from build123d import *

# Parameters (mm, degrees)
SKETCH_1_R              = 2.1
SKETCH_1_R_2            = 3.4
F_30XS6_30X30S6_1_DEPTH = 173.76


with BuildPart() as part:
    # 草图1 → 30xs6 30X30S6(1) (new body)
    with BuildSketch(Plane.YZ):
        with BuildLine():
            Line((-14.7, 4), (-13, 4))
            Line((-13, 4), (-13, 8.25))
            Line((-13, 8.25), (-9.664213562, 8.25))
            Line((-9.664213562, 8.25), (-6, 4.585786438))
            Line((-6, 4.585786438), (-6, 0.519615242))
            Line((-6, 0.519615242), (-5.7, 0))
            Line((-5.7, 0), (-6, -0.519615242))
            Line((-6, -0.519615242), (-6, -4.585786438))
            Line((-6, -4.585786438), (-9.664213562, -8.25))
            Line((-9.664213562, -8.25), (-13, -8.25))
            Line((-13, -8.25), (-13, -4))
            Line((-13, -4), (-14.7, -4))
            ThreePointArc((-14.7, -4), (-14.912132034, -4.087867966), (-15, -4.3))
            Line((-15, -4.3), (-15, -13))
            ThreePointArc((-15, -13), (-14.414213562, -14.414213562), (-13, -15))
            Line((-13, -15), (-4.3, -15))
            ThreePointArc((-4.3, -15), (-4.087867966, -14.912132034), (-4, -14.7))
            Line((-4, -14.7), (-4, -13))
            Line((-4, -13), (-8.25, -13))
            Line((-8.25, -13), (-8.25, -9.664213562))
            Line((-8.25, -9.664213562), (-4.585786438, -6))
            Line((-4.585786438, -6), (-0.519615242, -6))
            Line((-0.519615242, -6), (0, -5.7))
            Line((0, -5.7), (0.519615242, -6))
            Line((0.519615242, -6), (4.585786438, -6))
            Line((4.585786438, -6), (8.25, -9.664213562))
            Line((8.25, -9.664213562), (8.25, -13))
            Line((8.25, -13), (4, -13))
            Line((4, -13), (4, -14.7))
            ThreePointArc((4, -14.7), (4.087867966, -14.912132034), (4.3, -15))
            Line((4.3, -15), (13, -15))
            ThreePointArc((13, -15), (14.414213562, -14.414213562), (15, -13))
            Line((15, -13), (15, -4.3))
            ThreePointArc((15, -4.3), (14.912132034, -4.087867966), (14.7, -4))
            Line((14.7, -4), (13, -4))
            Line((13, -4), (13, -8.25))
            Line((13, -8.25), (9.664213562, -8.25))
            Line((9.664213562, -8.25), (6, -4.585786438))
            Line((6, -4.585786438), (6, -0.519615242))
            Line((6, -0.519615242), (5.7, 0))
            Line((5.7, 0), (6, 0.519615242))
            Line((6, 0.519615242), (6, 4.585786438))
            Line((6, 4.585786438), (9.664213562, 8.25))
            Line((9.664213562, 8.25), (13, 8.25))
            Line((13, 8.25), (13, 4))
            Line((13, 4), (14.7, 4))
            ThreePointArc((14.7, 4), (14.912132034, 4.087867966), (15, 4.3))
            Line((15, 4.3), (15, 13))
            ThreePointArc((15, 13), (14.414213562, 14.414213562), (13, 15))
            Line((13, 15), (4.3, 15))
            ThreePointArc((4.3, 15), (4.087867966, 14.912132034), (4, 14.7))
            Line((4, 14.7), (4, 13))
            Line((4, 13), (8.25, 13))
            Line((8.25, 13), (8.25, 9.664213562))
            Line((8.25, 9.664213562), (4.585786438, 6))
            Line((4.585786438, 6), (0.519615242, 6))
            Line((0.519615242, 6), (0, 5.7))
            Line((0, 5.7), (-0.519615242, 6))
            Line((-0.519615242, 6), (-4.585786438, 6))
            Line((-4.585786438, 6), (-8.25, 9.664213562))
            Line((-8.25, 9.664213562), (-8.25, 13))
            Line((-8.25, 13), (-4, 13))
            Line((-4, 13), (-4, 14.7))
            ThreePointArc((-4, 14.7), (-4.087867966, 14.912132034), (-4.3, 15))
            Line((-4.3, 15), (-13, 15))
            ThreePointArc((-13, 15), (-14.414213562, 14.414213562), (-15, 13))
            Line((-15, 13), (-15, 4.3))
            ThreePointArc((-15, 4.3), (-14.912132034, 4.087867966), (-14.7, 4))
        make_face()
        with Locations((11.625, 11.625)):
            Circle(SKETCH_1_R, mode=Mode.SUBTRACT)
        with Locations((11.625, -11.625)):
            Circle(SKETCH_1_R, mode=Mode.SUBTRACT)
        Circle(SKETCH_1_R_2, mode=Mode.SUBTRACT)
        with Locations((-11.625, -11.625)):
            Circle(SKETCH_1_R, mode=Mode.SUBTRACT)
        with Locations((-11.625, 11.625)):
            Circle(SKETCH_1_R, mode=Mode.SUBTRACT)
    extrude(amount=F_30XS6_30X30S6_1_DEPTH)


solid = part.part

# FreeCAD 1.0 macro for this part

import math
import FreeCAD as App
import Part
import Sketcher
Q = App.Units.Quantity

doc = App.newDocument("Part")
body = doc.addObject("PartDesign::Body", "Body")

sketch1 = body.newObject("Sketcher::SketchObject", "Sketch")
sketch1.AttachmentSupport = (doc.getObject("YZ_Plane"), [""])
sketch1.MapMode = "FlatFace"
sketch1.addGeometry([
    Part.LineSegment(App.Vector(-14.7, 4, 0), App.Vector(-13, 4, 0)),
    Part.LineSegment(App.Vector(-13, 4, 0), App.Vector(-13, 8.25, 0)),
    Part.LineSegment(App.Vector(-13, 8.25, 0), App.Vector(-9.66, 8.25, 0)),
    Part.LineSegment(App.Vector(-9.66, 8.25, 0), App.Vector(-6, 4.59, 0)),
    Part.LineSegment(App.Vector(-6, 4.59, 0), App.Vector(-6, 0.52, 0)),
    Part.LineSegment(App.Vector(-6, 0.52, 0), App.Vector(-5.7, 0, 0)),
    Part.LineSegment(App.Vector(-5.7, 0, 0), App.Vector(-6, -0.52, 0)),
    Part.LineSegment(App.Vector(-6, -0.52, 0), App.Vector(-6, -4.59, 0)),
    Part.LineSegment(App.Vector(-6, -4.59, 0), App.Vector(-9.66, -8.25, 0)),
    Part.LineSegment(App.Vector(-9.66, -8.25, 0), App.Vector(-13, -8.25, 0)),
    Part.LineSegment(App.Vector(-13, -8.25, 0), App.Vector(-13, -4, 0)),
    Part.LineSegment(App.Vector(-13, -4, 0), App.Vector(-14.7, -4, 0)),
    Part.ArcOfCircle(Part.Circle(App.Vector(-14.7, -4.3, 0), App.Vector(0, 0, 1), 0.3), math.radians(90), math.radians(180)),
    Part.LineSegment(App.Vector(-15, -4.3, 0), App.Vector(-15, -13, 0)),
    Part.ArcOfCircle(Part.Circle(App.Vector(-13, -13, 0), App.Vector(0, 0, 1), 2), math.radians(-180), math.radians(-90)),
    Part.LineSegment(App.Vector(-13, -15, 0), App.Vector(-4.3, -15, 0)),
    Part.ArcOfCircle(Part.Circle(App.Vector(-4.3, -14.7, 0), App.Vector(0, 0, 1), 0.3), math.radians(-90), math.radians(0)),
    Part.LineSegment(App.Vector(-4, -14.7, 0), App.Vector(-4, -13, 0)),
    Part.LineSegment(App.Vector(-4, -13, 0), App.Vector(-8.25, -13, 0)),
    Part.LineSegment(App.Vector(-8.25, -13, 0), App.Vector(-8.25, -9.66, 0)),
    Part.LineSegment(App.Vector(-8.25, -9.66, 0), App.Vector(-4.59, -6, 0)),
    Part.LineSegment(App.Vector(-4.59, -6, 0), App.Vector(-0.52, -6, 0)),
    Part.LineSegment(App.Vector(-0.52, -6, 0), App.Vector(0, -5.7, 0)),
    Part.LineSegment(App.Vector(0, -5.7, 0), App.Vector(0.52, -6, 0)),
    Part.LineSegment(App.Vector(0.52, -6, 0), App.Vector(4.59, -6, 0)),
    Part.LineSegment(App.Vector(4.59, -6, 0), App.Vector(8.25, -9.66, 0)),
    Part.LineSegment(App.Vector(8.25, -9.66, 0), App.Vector(8.25, -13, 0)),
    Part.LineSegment(App.Vector(8.25, -13, 0), App.Vector(4, -13, 0)),
    Part.LineSegment(App.Vector(4, -13, 0), App.Vector(4, -14.7, 0)),
    Part.ArcOfCircle(Part.Circle(App.Vector(4.3, -14.7, 0), App.Vector(0, 0, 1), 0.3), math.radians(-180), math.radians(-90)),
    Part.LineSegment(App.Vector(4.3, -15, 0), App.Vector(13, -15, 0)),
    Part.ArcOfCircle(Part.Circle(App.Vector(13, -13, 0), App.Vector(0, 0, 1), 2), math.radians(-90), math.radians(0)),
    Part.LineSegment(App.Vector(15, -13, 0), App.Vector(15, -4.3, 0)),
    Part.ArcOfCircle(Part.Circle(App.Vector(14.7, -4.3, 0), App.Vector(0, 0, 1), 0.3), math.radians(0), math.radians(90)),
    Part.LineSegment(App.Vector(14.7, -4, 0), App.Vector(13, -4, 0)),
    Part.LineSegment(App.Vector(13, -4, 0), App.Vector(13, -8.25, 0)),
    Part.LineSegment(App.Vector(13, -8.25, 0), App.Vector(9.66, -8.25, 0)),
    Part.LineSegment(App.Vector(9.66, -8.25, 0), App.Vector(6, -4.59, 0)),
    Part.LineSegment(App.Vector(6, -4.59, 0), App.Vector(6, -0.52, 0)),
    Part.LineSegment(App.Vector(6, -0.52, 0), App.Vector(5.7, 0, 0)),
    Part.LineSegment(App.Vector(5.7, 0, 0), App.Vector(6, 0.52, 0)),
    Part.LineSegment(App.Vector(6, 0.52, 0), App.Vector(6, 4.59, 0)),
    Part.LineSegment(App.Vector(6, 4.59, 0), App.Vector(9.66, 8.25, 0)),
    Part.LineSegment(App.Vector(9.66, 8.25, 0), App.Vector(13, 8.25, 0)),
    Part.LineSegment(App.Vector(13, 8.25, 0), App.Vector(13, 4, 0)),
    Part.LineSegment(App.Vector(13, 4, 0), App.Vector(14.7, 4, 0)),
    Part.ArcOfCircle(Part.Circle(App.Vector(14.7, 4.3, 0), App.Vector(0, 0, 1), 0.3), math.radians(-90), math.radians(0)),
    Part.LineSegment(App.Vector(15, 4.3, 0), App.Vector(15, 13, 0)),
    Part.ArcOfCircle(Part.Circle(App.Vector(13, 13, 0), App.Vector(0, 0, 1), 2), math.radians(0), math.radians(90)),
    Part.LineSegment(App.Vector(13, 15, 0), App.Vector(4.3, 15, 0)),
    Part.ArcOfCircle(Part.Circle(App.Vector(4.3, 14.7, 0), App.Vector(0, 0, 1), 0.3), math.radians(90), math.radians(180)),
    Part.LineSegment(App.Vector(4, 14.7, 0), App.Vector(4, 13, 0)),
    Part.LineSegment(App.Vector(4, 13, 0), App.Vector(8.25, 13, 0)),
    Part.LineSegment(App.Vector(8.25, 13, 0), App.Vector(8.25, 9.66, 0)),
    Part.LineSegment(App.Vector(8.25, 9.66, 0), App.Vector(4.59, 6, 0)),
    Part.LineSegment(App.Vector(4.59, 6, 0), App.Vector(0.52, 6, 0)),
    Part.LineSegment(App.Vector(0.52, 6, 0), App.Vector(0, 5.7, 0)),
    Part.LineSegment(App.Vector(0, 5.7, 0), App.Vector(-0.52, 6, 0)),
    Part.LineSegment(App.Vector(-0.52, 6, 0), App.Vector(-4.59, 6, 0)),
    Part.LineSegment(App.Vector(-4.59, 6, 0), App.Vector(-8.25, 9.66, 0)),
    Part.LineSegment(App.Vector(-8.25, 9.66, 0), App.Vector(-8.25, 13, 0)),
    Part.LineSegment(App.Vector(-8.25, 13, 0), App.Vector(-4, 13, 0)),
    Part.LineSegment(App.Vector(-4, 13, 0), App.Vector(-4, 14.7, 0)),
    Part.ArcOfCircle(Part.Circle(App.Vector(-4.3, 14.7, 0), App.Vector(0, 0, 1), 0.3), math.radians(0), math.radians(90)),
    Part.LineSegment(App.Vector(-4.3, 15, 0), App.Vector(-13, 15, 0)),
    Part.ArcOfCircle(Part.Circle(App.Vector(-13, 13, 0), App.Vector(0, 0, 1), 2), math.radians(90), math.radians(180)),
    Part.LineSegment(App.Vector(-15, 13, 0), App.Vector(-15, 4.3, 0)),
    Part.ArcOfCircle(Part.Circle(App.Vector(-14.7, 4.3, 0), App.Vector(0, 0, 1), 0.3), math.radians(-180), math.radians(-90)),
    Part.Circle(App.Vector(-11.62, -11.62, 0), App.Vector(0, 0, 1), 2.1),
    Part.Circle(App.Vector(11.62, -11.62, 0), App.Vector(0, 0, 1), 2.1),
    Part.Circle(App.Vector(-11.62, 11.62, 0), App.Vector(0, 0, 1), 2.1),
    Part.Circle(App.Vector(0, 0, 0), App.Vector(0, 0, 1), 3.4),
    Part.Circle(App.Vector(11.62, 11.62, 0), App.Vector(0, 0, 1), 2.1),
], False)
sketch1.addConstraint([
    Sketcher.Constraint("Coincident", 0, 2, 1, 1),
    Sketcher.Constraint("Coincident", 1, 2, 2, 1),
    Sketcher.Constraint("Coincident", 2, 2, 3, 1),
    Sketcher.Constraint("Coincident", 3, 2, 4, 1),
    Sketcher.Constraint("Coincident", 4, 2, 5, 1),
    Sketcher.Constraint("Coincident", 5, 2, 6, 1),
    Sketcher.Constraint("Coincident", 6, 2, 7, 1),
    Sketcher.Constraint("Coincident", 7, 2, 8, 1),
    Sketcher.Constraint("Coincident", 8, 2, 9, 1),
    Sketcher.Constraint("Coincident", 9, 2, 10, 1),
    Sketcher.Constraint("Coincident", 10, 2, 11, 1),
    Sketcher.Constraint("Tangent", 11, 2, 12, 1),
    Sketcher.Constraint("Tangent", 12, 2, 13, 1),
    Sketcher.Constraint("Tangent", 13, 2, 14, 1),
    Sketcher.Constraint("Tangent", 14, 2, 15, 1),
    Sketcher.Constraint("Tangent", 15, 2, 16, 1),
    Sketcher.Constraint("Tangent", 16, 2, 17, 1),
    Sketcher.Constraint("Coincident", 17, 2, 18, 1),
    Sketcher.Constraint("Coincident", 18, 2, 19, 1),
    Sketcher.Constraint("Coincident", 19, 2, 20, 1),
    Sketcher.Constraint("Coincident", 20, 2, 21, 1),
    Sketcher.Constraint("Coincident", 21, 2, 22, 1),
    Sketcher.Constraint("Coincident", 22, 2, 23, 1),
    Sketcher.Constraint("Coincident", 23, 2, 24, 1),
    Sketcher.Constraint("Coincident", 24, 2, 25, 1),
    Sketcher.Constraint("Coincident", 25, 2, 26, 1),
    Sketcher.Constraint("Coincident", 26, 2, 27, 1),
    Sketcher.Constraint("Coincident", 27, 2, 28, 1),
    Sketcher.Constraint("Tangent", 28, 2, 29, 1),
    Sketcher.Constraint("Tangent", 29, 2, 30, 1),
    Sketcher.Constraint("Tangent", 30, 2, 31, 1),
    Sketcher.Constraint("Tangent", 31, 2, 32, 1),
    Sketcher.Constraint("Tangent", 32, 2, 33, 1),
    Sketcher.Constraint("Tangent", 33, 2, 34, 1),
    Sketcher.Constraint("Coincident", 34, 2, 35, 1),
    Sketcher.Constraint("Coincident", 35, 2, 36, 1),
    Sketcher.Constraint("Coincident", 36, 2, 37, 1),
    Sketcher.Constraint("Coincident", 37, 2, 38, 1),
    Sketcher.Constraint("Coincident", 38, 2, 39, 1),
    Sketcher.Constraint("Coincident", 39, 2, 40, 1),
    Sketcher.Constraint("Coincident", 40, 2, 41, 1),
    Sketcher.Constraint("Coincident", 41, 2, 42, 1),
    Sketcher.Constraint("Coincident", 42, 2, 43, 1),
    Sketcher.Constraint("Coincident", 43, 2, 44, 1),
    Sketcher.Constraint("Coincident", 44, 2, 45, 1),
    Sketcher.Constraint("Tangent", 45, 2, 46, 1),
    Sketcher.Constraint("Tangent", 46, 2, 47, 1),
    Sketcher.Constraint("Tangent", 47, 2, 48, 1),
    Sketcher.Constraint("Tangent", 48, 2, 49, 1),
    Sketcher.Constraint("Tangent", 49, 2, 50, 1),
    Sketcher.Constraint("Tangent", 50, 2, 51, 1),
    Sketcher.Constraint("Coincident", 51, 2, 52, 1),
    Sketcher.Constraint("Coincident", 52, 2, 53, 1),
    Sketcher.Constraint("Coincident", 53, 2, 54, 1),
    Sketcher.Constraint("Coincident", 54, 2, 55, 1),
    Sketcher.Constraint("Coincident", 55, 2, 56, 1),
    Sketcher.Constraint("Coincident", 56, 2, 57, 1),
    Sketcher.Constraint("Coincident", 57, 2, 58, 1),
    Sketcher.Constraint("Coincident", 58, 2, 59, 1),
    Sketcher.Constraint("Coincident", 59, 2, 60, 1),
    Sketcher.Constraint("Coincident", 60, 2, 61, 1),
    Sketcher.Constraint("Coincident", 61, 2, 62, 1),
    Sketcher.Constraint("Tangent", 62, 2, 63, 1),
    Sketcher.Constraint("Tangent", 63, 2, 64, 1),
    Sketcher.Constraint("Tangent", 64, 2, 65, 1),
    Sketcher.Constraint("Tangent", 65, 2, 66, 1),
    Sketcher.Constraint("Tangent", 66, 2, 67, 1),
    Sketcher.Constraint("Tangent", 67, 2, 0, 1),
    Sketcher.Constraint("Horizontal", 0),
    Sketcher.Constraint("Vertical", 1),
    Sketcher.Constraint("Horizontal", 2),
    Sketcher.Constraint("Vertical", 4),
    Sketcher.Constraint("Vertical", 7),
    Sketcher.Constraint("Horizontal", 9),
    Sketcher.Constraint("Vertical", 10),
    Sketcher.Constraint("Horizontal", 11),
    Sketcher.Constraint("Vertical", 13),
    Sketcher.Constraint("Horizontal", 15),
    Sketcher.Constraint("Vertical", 17),
    Sketcher.Constraint("Horizontal", 18),
    Sketcher.Constraint("Vertical", 19),
    Sketcher.Constraint("Horizontal", 21),
    Sketcher.Constraint("Horizontal", 24),
    Sketcher.Constraint("Vertical", 26),
    Sketcher.Constraint("Horizontal", 27),
    Sketcher.Constraint("Vertical", 28),
    Sketcher.Constraint("Horizontal", 30),
    Sketcher.Constraint("Vertical", 32),
    Sketcher.Constraint("Horizontal", 34),
    Sketcher.Constraint("Vertical", 35),
    Sketcher.Constraint("Horizontal", 36),
    Sketcher.Constraint("Vertical", 38),
    Sketcher.Constraint("Vertical", 41),
    Sketcher.Constraint("Horizontal", 43),
    Sketcher.Constraint("Vertical", 44),
    Sketcher.Constraint("Horizontal", 45),
    Sketcher.Constraint("Vertical", 47),
    Sketcher.Constraint("Horizontal", 49),
    Sketcher.Constraint("Vertical", 51),
    Sketcher.Constraint("Horizontal", 52),
    Sketcher.Constraint("Vertical", 53),
    Sketcher.Constraint("Horizontal", 55),
    Sketcher.Constraint("Horizontal", 58),
    Sketcher.Constraint("Vertical", 60),
    Sketcher.Constraint("Horizontal", 61),
    Sketcher.Constraint("Vertical", 62),
    Sketcher.Constraint("Horizontal", 64),
    Sketcher.Constraint("Vertical", 66),
    Sketcher.Constraint("Coincident", 71, 3, -1, 1),
    Sketcher.Constraint("Equal", 12, 16),
    Sketcher.Constraint("Equal", 16, 29),
    Sketcher.Constraint("Equal", 14, 31),
    Sketcher.Constraint("Equal", 29, 33),
    Sketcher.Constraint("Equal", 33, 46),
    Sketcher.Constraint("Equal", 31, 48),
    Sketcher.Constraint("Equal", 46, 50),
    Sketcher.Constraint("Equal", 50, 63),
    Sketcher.Constraint("Equal", 48, 65),
    Sketcher.Constraint("Equal", 63, 67),
    Sketcher.Constraint("Equal", 68, 69),
    Sketcher.Constraint("Equal", 69, 70),
    Sketcher.Constraint("Equal", 70, 72),
    Sketcher.Constraint("Symmetric", 12, 3, 46, 3, -1, 1),
    Sketcher.Constraint("Symmetric", 16, 3, 50, 3, -1, 1),
    Sketcher.Constraint("Symmetric", 29, 3, 63, 3, -1, 1),
    Sketcher.Constraint("Symmetric", 33, 3, 67, 3, -1, 1),
    Sketcher.Constraint("Symmetric", 69, 3, 70, 3, -1, 1),
    Sketcher.Constraint("Symmetric", 68, 3, 72, 3, -1, 1),
    Sketcher.Constraint("Symmetric", 1, 2, 35, 2, -1, 1),
    Sketcher.Constraint("Symmetric", 3, 2, 37, 2, -1, 1),
    Sketcher.Constraint("Symmetric", 5, 2, 39, 2, -1, 1),
    Sketcher.Constraint("Symmetric", 6, 2, 40, 2, -1, 1),
    Sketcher.Constraint("Symmetric", 8, 2, 42, 2, -1, 1),
    Sketcher.Constraint("Symmetric", 18, 2, 52, 2, -1, 1),
    Sketcher.Constraint("Symmetric", 20, 2, 54, 2, -1, 1),
    Sketcher.Constraint("Symmetric", 22, 2, 56, 2, -1, 1),
    Sketcher.Constraint("Symmetric", 23, 2, 57, 2, -1, 1),
    Sketcher.Constraint("Symmetric", 25, 2, 59, 2, -1, 1),
    Sketcher.Constraint("Symmetric", 16, 3, 29, 3, -2),
    Sketcher.Constraint("Symmetric", 12, 3, 33, 3, -2),
    Sketcher.Constraint("Symmetric", 68, 3, 69, 3, -2),
    Sketcher.Constraint("Symmetric", 21, 2, 23, 2, -2),
    Sketcher.Constraint("Symmetric", 19, 2, 25, 2, -2),
    Sketcher.Constraint("Symmetric", 9, 2, 35, 2, -2),
    Sketcher.Constraint("Symmetric", 7, 2, 37, 2, -2),
    Sketcher.Constraint("PointOnObject", 5, 2, -1),
    Sketcher.Constraint("PointOnObject", 22, 2, -2),
    Sketcher.Constraint("Perpendicular", 3, 8),
    Sketcher.Constraint("Parallel", 8, 20),
    Sketcher.Constraint("Perpendicular", 5, 22),
    Sketcher.Constraint("Perpendicular", 6, 23),
    Sketcher.Constraint("Perpendicular", 20, 25),
    Sketcher.Constraint("Parallel", 25, 37),
    Sketcher.Constraint("Perpendicular", 22, 39),
    Sketcher.Constraint("Perpendicular", 37, 42),
    Sketcher.Constraint("Parallel", 42, 54),
    Sketcher.Constraint("Perpendicular", 39, 56),
    Sketcher.Constraint("Perpendicular", 54, 59),
    Sketcher.Constraint("Horizontal", 13, 2, 17, 2),
    Sketcher.Constraint("Horizontal", 18, 2, 26, 2),
    Sketcher.Constraint("Horizontal", 52, 2, 60, 2),
    Sketcher.Constraint("Vertical", 65, 3, 0, 2),
    Sketcher.Constraint("Vertical", 2, 2, 8, 2),
    Sketcher.Constraint("Vertical", 35, 2, 43, 2),
    Sketcher.Constraint("Equal", 61, 1),
    Sketcher.Constraint("Equal", 58, 4),
    Sketcher.Constraint("Equal", 64, 13),
    Sketcher.Constraint("Equal", 43, 19),
    Sketcher.Constraint("Equal", 8, 20),
    Sketcher.Constraint("Equal", 6, 22),
    Sketcher.Constraint("Radius", 14, Q("2 mm")),
    Sketcher.Constraint("Diameter", 68, Q("4.2 mm")),
    Sketcher.Constraint("Diameter", 71, Q("6.8 mm")),
    Sketcher.Constraint("Radius", 12, Q("0.3 mm")),
    Sketcher.Constraint("Angle", 5, Q("-60 deg")),
    Sketcher.Constraint("DistanceX", 15, 1, 15, 2, Q("8.7 mm")),
    Sketcher.Constraint("DistanceX", 14, 3, -1, 1, Q("13 mm")),
    Sketcher.Constraint("DistanceX", 3, 2, -1, 1, Q("6 mm")),
    Sketcher.Constraint("Distance", 5, Q("0.6 mm")),
    Sketcher.Constraint("DistanceX", 18, 2, 18, 1, Q("4.25 mm")),
    Sketcher.Constraint("DistanceX", 68, 3, -1, 1, Q("11.625 mm")),
    Sketcher.Constraint("DistanceY", 68, 3, -1, 1, Q("11.625 mm")),
    Sketcher.Constraint("DistanceX", 21, 1, 21, 2, Q("4.066171 mm")),
])
pad1 = body.newObject("PartDesign::Pad", "Pad")
pad1.Profile = sketch1
pad1.Length = 173.76

doc.recompute()
